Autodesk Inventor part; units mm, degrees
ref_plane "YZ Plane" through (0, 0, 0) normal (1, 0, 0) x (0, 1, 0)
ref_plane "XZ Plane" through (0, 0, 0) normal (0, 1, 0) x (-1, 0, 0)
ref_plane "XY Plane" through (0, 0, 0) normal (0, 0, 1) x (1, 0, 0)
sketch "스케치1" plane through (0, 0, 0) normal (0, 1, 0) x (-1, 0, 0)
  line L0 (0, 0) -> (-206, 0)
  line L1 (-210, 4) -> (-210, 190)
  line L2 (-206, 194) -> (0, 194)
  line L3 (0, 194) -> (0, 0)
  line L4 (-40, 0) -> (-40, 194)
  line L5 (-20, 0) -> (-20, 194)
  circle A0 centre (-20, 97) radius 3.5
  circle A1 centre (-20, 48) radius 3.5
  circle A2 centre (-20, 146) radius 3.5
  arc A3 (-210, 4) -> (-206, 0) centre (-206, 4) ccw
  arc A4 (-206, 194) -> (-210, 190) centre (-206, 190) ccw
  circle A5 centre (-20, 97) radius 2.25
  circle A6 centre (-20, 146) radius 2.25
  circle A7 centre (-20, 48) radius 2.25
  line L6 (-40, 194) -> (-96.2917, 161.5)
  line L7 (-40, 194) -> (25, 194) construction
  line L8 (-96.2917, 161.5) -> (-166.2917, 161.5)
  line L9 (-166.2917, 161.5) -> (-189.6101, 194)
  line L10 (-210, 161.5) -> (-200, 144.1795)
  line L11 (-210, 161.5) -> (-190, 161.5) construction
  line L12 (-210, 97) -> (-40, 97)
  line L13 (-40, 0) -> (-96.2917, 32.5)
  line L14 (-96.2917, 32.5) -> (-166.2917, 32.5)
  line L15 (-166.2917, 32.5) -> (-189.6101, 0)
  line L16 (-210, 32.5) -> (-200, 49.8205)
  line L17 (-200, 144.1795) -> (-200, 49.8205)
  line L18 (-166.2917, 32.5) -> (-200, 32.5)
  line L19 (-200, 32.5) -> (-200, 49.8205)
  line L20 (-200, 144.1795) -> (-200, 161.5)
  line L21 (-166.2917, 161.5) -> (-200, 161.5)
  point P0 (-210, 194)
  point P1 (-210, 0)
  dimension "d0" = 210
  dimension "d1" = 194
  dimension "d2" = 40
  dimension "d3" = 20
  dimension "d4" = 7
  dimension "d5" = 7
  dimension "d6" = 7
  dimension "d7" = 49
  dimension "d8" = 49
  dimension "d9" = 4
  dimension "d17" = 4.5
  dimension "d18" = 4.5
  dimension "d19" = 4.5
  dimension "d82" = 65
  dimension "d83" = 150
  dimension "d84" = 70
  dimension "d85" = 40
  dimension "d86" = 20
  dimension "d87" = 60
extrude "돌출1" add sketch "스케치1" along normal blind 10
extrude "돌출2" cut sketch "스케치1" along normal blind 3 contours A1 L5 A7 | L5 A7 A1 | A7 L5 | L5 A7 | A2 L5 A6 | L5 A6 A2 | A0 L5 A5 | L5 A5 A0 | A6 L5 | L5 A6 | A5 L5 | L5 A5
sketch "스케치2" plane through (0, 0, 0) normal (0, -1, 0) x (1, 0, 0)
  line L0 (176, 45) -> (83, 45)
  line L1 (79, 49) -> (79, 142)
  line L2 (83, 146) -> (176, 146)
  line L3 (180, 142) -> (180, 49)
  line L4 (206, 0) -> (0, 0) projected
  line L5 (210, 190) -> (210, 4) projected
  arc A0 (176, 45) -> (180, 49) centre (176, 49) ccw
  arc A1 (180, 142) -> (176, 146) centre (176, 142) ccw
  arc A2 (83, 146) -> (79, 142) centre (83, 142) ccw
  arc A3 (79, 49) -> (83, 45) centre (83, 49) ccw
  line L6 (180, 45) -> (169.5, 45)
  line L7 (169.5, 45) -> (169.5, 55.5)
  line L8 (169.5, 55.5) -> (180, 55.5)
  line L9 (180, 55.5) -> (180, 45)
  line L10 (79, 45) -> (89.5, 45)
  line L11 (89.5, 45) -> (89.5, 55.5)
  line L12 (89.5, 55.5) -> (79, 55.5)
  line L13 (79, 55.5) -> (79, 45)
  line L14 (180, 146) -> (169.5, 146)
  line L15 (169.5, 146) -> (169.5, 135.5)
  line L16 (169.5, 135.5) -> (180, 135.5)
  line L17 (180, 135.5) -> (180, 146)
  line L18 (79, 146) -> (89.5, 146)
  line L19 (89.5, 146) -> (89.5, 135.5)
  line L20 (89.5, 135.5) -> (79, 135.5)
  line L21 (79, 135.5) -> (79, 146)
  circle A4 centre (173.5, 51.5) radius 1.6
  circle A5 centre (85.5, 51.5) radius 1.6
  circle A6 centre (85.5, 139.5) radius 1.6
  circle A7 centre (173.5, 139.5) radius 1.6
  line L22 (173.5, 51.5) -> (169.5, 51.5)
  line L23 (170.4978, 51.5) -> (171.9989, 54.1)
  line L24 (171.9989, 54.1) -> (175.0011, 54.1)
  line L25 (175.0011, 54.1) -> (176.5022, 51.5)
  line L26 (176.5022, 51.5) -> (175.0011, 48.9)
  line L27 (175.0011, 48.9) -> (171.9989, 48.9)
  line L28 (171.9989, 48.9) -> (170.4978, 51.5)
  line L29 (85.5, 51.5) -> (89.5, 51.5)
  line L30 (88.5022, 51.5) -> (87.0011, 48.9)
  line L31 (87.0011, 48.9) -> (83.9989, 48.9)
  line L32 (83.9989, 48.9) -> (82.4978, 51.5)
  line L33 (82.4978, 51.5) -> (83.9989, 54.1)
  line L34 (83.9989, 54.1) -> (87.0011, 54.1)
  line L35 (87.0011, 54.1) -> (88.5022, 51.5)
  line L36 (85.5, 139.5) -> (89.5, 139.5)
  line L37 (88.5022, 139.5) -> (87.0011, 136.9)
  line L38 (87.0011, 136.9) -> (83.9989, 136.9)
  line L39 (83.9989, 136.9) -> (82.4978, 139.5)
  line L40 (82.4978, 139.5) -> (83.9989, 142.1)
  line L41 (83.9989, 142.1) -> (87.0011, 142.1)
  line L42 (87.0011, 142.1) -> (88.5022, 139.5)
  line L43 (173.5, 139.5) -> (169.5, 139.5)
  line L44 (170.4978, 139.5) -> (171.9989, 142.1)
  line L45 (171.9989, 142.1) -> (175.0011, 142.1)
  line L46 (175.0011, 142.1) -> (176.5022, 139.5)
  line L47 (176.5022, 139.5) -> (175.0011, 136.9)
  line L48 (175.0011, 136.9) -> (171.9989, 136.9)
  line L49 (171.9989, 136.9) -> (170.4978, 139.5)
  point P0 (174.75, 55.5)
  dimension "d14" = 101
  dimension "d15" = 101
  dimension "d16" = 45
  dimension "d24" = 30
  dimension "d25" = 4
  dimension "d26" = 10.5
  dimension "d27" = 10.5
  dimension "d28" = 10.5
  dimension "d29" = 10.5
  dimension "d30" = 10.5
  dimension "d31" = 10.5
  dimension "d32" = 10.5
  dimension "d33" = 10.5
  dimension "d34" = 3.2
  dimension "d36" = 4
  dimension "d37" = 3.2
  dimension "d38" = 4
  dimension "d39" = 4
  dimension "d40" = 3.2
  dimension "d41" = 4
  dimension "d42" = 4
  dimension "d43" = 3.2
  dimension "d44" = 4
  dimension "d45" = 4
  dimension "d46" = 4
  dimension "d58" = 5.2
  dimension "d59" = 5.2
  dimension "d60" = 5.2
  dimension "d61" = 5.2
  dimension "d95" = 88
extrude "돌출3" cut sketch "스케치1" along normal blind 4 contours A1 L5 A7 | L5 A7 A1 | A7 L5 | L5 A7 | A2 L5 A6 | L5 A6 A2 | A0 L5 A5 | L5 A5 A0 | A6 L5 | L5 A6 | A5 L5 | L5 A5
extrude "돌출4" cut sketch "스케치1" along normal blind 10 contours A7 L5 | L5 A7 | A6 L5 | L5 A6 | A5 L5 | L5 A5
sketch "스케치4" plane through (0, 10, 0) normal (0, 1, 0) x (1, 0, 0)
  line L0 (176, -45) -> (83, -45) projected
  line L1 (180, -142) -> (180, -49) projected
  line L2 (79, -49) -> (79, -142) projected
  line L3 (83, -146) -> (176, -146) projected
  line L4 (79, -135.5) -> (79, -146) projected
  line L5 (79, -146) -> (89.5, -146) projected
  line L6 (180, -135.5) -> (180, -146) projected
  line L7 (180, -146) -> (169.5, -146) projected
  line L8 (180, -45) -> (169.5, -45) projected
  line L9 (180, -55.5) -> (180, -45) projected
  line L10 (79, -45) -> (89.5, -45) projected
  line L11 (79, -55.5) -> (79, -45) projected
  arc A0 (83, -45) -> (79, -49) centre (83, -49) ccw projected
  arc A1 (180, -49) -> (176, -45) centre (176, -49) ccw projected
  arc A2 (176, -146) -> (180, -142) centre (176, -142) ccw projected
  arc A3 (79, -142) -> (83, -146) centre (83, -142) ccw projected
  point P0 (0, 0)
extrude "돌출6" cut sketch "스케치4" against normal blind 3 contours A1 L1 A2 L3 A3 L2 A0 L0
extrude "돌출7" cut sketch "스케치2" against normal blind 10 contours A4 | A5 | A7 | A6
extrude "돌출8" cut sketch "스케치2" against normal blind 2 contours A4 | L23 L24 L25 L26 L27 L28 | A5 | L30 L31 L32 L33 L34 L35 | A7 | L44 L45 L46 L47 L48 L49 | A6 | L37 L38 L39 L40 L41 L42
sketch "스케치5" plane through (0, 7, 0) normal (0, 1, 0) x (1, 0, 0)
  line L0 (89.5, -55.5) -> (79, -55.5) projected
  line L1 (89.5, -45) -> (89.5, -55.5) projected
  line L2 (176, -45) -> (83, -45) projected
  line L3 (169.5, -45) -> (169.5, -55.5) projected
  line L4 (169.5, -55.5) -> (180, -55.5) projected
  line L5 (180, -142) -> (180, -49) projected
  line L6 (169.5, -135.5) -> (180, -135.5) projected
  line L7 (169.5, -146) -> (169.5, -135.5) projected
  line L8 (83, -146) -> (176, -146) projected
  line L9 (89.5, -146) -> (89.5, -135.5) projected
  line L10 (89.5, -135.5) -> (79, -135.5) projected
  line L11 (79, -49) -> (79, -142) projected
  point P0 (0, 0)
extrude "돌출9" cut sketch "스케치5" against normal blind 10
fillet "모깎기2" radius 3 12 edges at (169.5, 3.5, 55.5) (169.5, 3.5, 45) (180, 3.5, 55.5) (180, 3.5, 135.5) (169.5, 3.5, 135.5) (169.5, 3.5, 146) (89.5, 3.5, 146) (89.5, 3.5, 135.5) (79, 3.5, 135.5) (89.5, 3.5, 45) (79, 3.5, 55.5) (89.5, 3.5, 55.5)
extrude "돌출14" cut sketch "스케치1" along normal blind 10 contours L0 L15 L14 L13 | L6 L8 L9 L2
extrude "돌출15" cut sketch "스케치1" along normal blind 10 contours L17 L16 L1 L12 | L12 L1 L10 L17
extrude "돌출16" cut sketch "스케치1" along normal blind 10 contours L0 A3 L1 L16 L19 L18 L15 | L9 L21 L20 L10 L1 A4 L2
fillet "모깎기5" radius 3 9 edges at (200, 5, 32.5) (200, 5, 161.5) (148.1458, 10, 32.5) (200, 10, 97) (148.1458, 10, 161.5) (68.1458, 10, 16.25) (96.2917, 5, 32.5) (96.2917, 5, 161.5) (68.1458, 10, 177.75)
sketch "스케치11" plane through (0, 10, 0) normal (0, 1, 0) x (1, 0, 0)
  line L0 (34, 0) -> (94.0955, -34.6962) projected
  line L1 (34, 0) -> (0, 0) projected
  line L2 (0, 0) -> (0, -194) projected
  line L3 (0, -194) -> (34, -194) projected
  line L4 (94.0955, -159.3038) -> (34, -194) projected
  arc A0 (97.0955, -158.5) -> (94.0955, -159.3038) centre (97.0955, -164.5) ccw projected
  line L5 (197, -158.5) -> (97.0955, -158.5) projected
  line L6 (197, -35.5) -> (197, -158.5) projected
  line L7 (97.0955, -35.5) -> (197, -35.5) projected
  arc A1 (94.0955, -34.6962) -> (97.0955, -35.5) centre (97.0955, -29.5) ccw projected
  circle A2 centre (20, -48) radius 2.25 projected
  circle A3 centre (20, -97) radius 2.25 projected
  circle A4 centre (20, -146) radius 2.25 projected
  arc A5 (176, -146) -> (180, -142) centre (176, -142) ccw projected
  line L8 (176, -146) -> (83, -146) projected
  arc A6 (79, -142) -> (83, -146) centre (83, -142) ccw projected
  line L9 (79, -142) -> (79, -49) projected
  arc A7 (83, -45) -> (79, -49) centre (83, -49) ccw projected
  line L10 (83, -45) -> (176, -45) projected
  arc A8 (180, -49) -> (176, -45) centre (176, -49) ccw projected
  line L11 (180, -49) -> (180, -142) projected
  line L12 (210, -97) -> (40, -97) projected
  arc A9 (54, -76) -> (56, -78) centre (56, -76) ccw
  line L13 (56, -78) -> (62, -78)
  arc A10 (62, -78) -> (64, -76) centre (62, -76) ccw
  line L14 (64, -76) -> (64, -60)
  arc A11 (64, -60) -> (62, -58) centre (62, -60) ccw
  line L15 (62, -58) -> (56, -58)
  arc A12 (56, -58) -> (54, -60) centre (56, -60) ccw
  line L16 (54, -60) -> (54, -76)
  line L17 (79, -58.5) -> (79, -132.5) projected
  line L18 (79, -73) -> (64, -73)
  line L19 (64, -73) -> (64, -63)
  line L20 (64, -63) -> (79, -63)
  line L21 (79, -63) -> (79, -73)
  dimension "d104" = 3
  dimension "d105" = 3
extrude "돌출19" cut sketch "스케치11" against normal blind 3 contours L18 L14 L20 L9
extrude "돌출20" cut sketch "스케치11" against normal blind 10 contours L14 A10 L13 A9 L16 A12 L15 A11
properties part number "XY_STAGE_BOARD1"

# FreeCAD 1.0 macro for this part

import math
import FreeCAD as App
import Part
import Sketcher
from FreeCAD import Vector
Q = App.Units.Quantity


def edges_at(feature, points):
    """Names of the edges that pass closest to the given points."""
    edges = feature.Shape.Edges
    near = lambda p: min(range(len(edges)), key=lambda i: edges[i].distToShape(Part.Vertex(*p))[0])
    return sorted({f"Edge{near(p) + 1}" for p in points})

doc = App.newDocument("Part")
params = doc.addObject("Spreadsheet::Sheet", "Params")
for row, (alias, value) in enumerate([
    ("sketch1_radius", "4 mm"),
    ("sketch1_height", "194 mm"),
    ("pad1_length", "10 mm"),
    ("sketch2_diameter", "7 mm"),
    ("pocket1_length", "3 mm"),
    ("sketch3_diameter", "7 mm"),
    ("pocket2_length", "4 mm"),
    ("sketch4_diameter", "4.5 mm"),
    ("pocket3_length", "10 mm"),
    ("sketch5_radius", "4 mm"),
    ("sketch5_width", "93 mm"),
    ("pocket4_length", "3 mm"),
    ("sketch6_diameter", "3.2 mm"),
    ("pocket5_length", "10 mm"),
    ("pocket6_length", "2 mm"),
    ("sketch8_width", "80 mm"),
    ("sketch8_width2", "10.5 mm"),
    ("pocket7_length", "10 mm"),
    ("fillet_radius", "3 mm"),
    ("sketch9_width", "70 mm"),
    ("sketch9_length", "65 mm"),
    ("sketch9_length2", "40 mm"),
    ("pocket8_length", "10 mm"),
    ("sketch10_length", "20 mm"),
    ("sketch10_height", "129 mm"),
    ("pocket9_length", "10 mm"),
    ("sketch11_radius", "4 mm"),
    ("sketch11_length", "40 mm"),
    ("sketch11_length2", "20 mm"),
    ("sketch11_height", "28.5 mm"),
    ("sketch11_width", "16.39 mm"),
    ("pocket10_length", "10 mm"),
    ("fillet2_radius", "3 mm"),
    ("sketch12_width", "15 mm"),
    ("sketch12_height", "10 mm"),
    ("pocket11_length", "3 mm"),
    ("sketch13_radius", "2 mm"),
    ("sketch13_width", "6 mm"),
    ("sketch13_height", "16 mm"),
    ("pocket12_length", "10 mm"),
], start=1):
    params.set(f"A{row}", alias)
    params.set(f"B{row}", "=" + value)
    params.setAlias(f"B{row}", alias)

body = doc.addObject("PartDesign::Body", "Body")

# Sketch on XZ plane
sketch1 = body.newObject("Sketcher::SketchObject", "Sketch")
sketch1.AttachmentSupport = (doc.getObject("XZ_Plane"), [""])
sketch1.MapMode = "FlatFace"
sketch1.addGeometry(Part.LineSegment(Vector(0, 0, 0), Vector(0, 194, 0)), False)
sketch1.addGeometry(Part.LineSegment(Vector(0, 194, 0), Vector(206, 194, 0)), False)
sketch1.addGeometry(Part.ArcOfCircle(Part.Circle(Vector(206, 190, 0), Vector(0, 0, 1), 4), math.radians(0), math.radians(90)), False)
sketch1.addGeometry(Part.LineSegment(Vector(210, 190, 0), Vector(210, 4, 0)), False)
sketch1.addGeometry(Part.ArcOfCircle(Part.Circle(Vector(206, 4, 0), Vector(0, 0, 1), 4), math.radians(-90), math.radians(0)), False)
sketch1.addGeometry(Part.LineSegment(Vector(206, 0, 0), Vector(0, 0, 0)), False)
sketch1.addConstraint(Sketcher.Constraint("Coincident", 0, 2, 1, 1))
sketch1.addConstraint(Sketcher.Constraint("Tangent", 1, 2, 2, 2))
sketch1.addConstraint(Sketcher.Constraint("Tangent", 2, 1, 3, 1))
sketch1.addConstraint(Sketcher.Constraint("Tangent", 3, 2, 4, 2))
sketch1.addConstraint(Sketcher.Constraint("Tangent", 4, 1, 5, 1))
sketch1.addConstraint(Sketcher.Constraint("Coincident", 5, 2, 0, 1))
sketch1.addConstraint(Sketcher.Constraint("Vertical", 0))
sketch1.addConstraint(Sketcher.Constraint("Horizontal", 1))
sketch1.addConstraint(Sketcher.Constraint("Vertical", 3))
sketch1.addConstraint(Sketcher.Constraint("Horizontal", 5))
sketch1.addConstraint(Sketcher.Constraint("Coincident", 5, 2, -1, 1))
sketch1.addConstraint(Sketcher.Constraint("Equal", 2, 4))
sketch1.addConstraint(Sketcher.Constraint("Radius", 2, 4.0))
sketch1.addConstraint(Sketcher.Constraint("DistanceY", 0, 1, 0, 2, 194.0))
sketch1.addConstraint(Sketcher.Constraint("DistanceX", -1, 1, 2, 1, 210.0))
sketch1.setExpression("Constraints[12]", "Params.sketch1_radius")
sketch1.setExpression("Constraints[13]", "Params.sketch1_height")
pad1 = body.newObject("PartDesign::Pad", "Pad")
pad1.Profile = sketch1
pad1.setExpression("Length", "Params.pad1_length")
pad1.Reversed = True

# Sketch on XZ plane
sketch2 = body.newObject("Sketcher::SketchObject", "Sketch001")
sketch2.AttachmentSupport = (doc.getObject("XZ_Plane"), [""])
sketch2.MapMode = "FlatFace"
sketch2.addGeometry(Part.Circle(Vector(20, 48, 0), Vector(0, 0, 1), 3.5), False)
sketch2.addGeometry(Part.Circle(Vector(20, 146, 0), Vector(0, 0, 1), 3.5), False)
sketch2.addGeometry(Part.Circle(Vector(20, 97, 0), Vector(0, 0, 1), 3.5), False)
sketch2.addConstraint(Sketcher.Constraint("Equal", 0, 1))
sketch2.addConstraint(Sketcher.Constraint("Equal", 1, 2))
sketch2.addConstraint(Sketcher.Constraint("Vertical", 0, 3, 1, 3))
sketch2.addConstraint(Sketcher.Constraint("Vertical", 1, 3, 2, 3))
sketch2.addConstraint(Sketcher.Constraint("Diameter", 0, 7.0))
sketch2.addConstraint(Sketcher.Constraint("DistanceX", -1, 1, 0, 3, 20.0))
sketch2.addConstraint(Sketcher.Constraint("DistanceY", 0, 3, 2, 3, 49.0))
sketch2.addConstraint(Sketcher.Constraint("DistanceY", 2, 3, 1, 3, 49.0))
sketch2.addConstraint(Sketcher.Constraint("DistanceY", -1, 1, 0, 3, 48.0))
sketch2.setExpression("Constraints[4]", "Params.sketch2_diameter")
pocket1 = body.newObject("PartDesign::Pocket", "Pocket")
pocket1.Profile = sketch2
pocket1.setExpression("Length", "Params.pocket1_length")

# Sketch on XZ plane
sketch3 = body.newObject("Sketcher::SketchObject", "Sketch002")
sketch3.AttachmentSupport = (doc.getObject("XZ_Plane"), [""])
sketch3.MapMode = "FlatFace"
sketch3.addGeometry(Part.Circle(Vector(20, 48, 0), Vector(0, 0, 1), 3.5), False)
sketch3.addGeometry(Part.Circle(Vector(20, 146, 0), Vector(0, 0, 1), 3.5), False)
sketch3.addGeometry(Part.Circle(Vector(20, 97, 0), Vector(0, 0, 1), 3.5), False)
sketch3.addConstraint(Sketcher.Constraint("Equal", 0, 1))
sketch3.addConstraint(Sketcher.Constraint("Equal", 1, 2))
sketch3.addConstraint(Sketcher.Constraint("Vertical", 0, 3, 1, 3))
sketch3.addConstraint(Sketcher.Constraint("Vertical", 1, 3, 2, 3))
sketch3.addConstraint(Sketcher.Constraint("Diameter", 0, 7.0))
sketch3.addConstraint(Sketcher.Constraint("DistanceX", -1, 1, 0, 3, 20.0))
sketch3.addConstraint(Sketcher.Constraint("DistanceY", 0, 3, 2, 3, 49.0))
sketch3.addConstraint(Sketcher.Constraint("DistanceY", 2, 3, 1, 3, 49.0))
sketch3.addConstraint(Sketcher.Constraint("DistanceY", -1, 1, 0, 3, 48.0))
sketch3.setExpression("Constraints[4]", "Params.sketch3_diameter")
pocket2 = body.newObject("PartDesign::Pocket", "Pocket001")
pocket2.Profile = sketch3
pocket2.setExpression("Length", "Params.pocket2_length")

# Sketch on XZ plane
sketch4 = body.newObject("Sketcher::SketchObject", "Sketch003")
sketch4.AttachmentSupport = (doc.getObject("XZ_Plane"), [""])
sketch4.MapMode = "FlatFace"
sketch4.addGeometry(Part.Circle(Vector(20, 48, 0), Vector(0, 0, 1), 2.2), False)
sketch4.addGeometry(Part.Circle(Vector(20, 146, 0), Vector(0, 0, 1), 2.2), False)
sketch4.addGeometry(Part.Circle(Vector(20, 97, 0), Vector(0, 0, 1), 2.2), False)
sketch4.addConstraint(Sketcher.Constraint("Equal", 0, 1))
sketch4.addConstraint(Sketcher.Constraint("Equal", 1, 2))
sketch4.addConstraint(Sketcher.Constraint("Vertical", 0, 3, 1, 3))
sketch4.addConstraint(Sketcher.Constraint("Vertical", 1, 3, 2, 3))
sketch4.addConstraint(Sketcher.Constraint("Diameter", 0, 4.5))
sketch4.addConstraint(Sketcher.Constraint("DistanceX", -1, 1, 0, 3, 20.0))
sketch4.addConstraint(Sketcher.Constraint("DistanceY", 0, 3, 2, 3, 49.0))
sketch4.addConstraint(Sketcher.Constraint("DistanceY", 2, 3, 1, 3, 49.0))
sketch4.addConstraint(Sketcher.Constraint("DistanceY", -1, 1, 0, 3, 48.0))
sketch4.setExpression("Constraints[4]", "Params.sketch4_diameter")
pocket3 = body.newObject("PartDesign::Pocket", "Pocket002")
pocket3.Profile = sketch4
pocket3.setExpression("Length", "Params.pocket3_length")

# Sketch on XZ plane
sketch5 = body.newObject("Sketcher::SketchObject", "Sketch004")
sketch5.AttachmentSupport = (doc.getObject("XZ_Plane"), [""])
sketch5.MapMode = "FlatFace"
sketch5.AttachmentOffset = App.Placement(Vector(0, 0, -10), App.Rotation())
sketch5.addGeometry(Part.ArcOfCircle(Part.Circle(Vector(176, 49, 0), Vector(0, 0, 1), 4), math.radians(-90), math.radians(0)), False)
sketch5.addGeometry(Part.LineSegment(Vector(176, 45, 0), Vector(83, 45, 0)), False)
sketch5.addGeometry(Part.ArcOfCircle(Part.Circle(Vector(83, 49, 0), Vector(0, 0, 1), 4), math.radians(180), math.radians(270)), False)
sketch5.addGeometry(Part.LineSegment(Vector(79, 49, 0), Vector(79, 142, 0)), False)
sketch5.addGeometry(Part.ArcOfCircle(Part.Circle(Vector(83, 142, 0), Vector(0, 0, 1), 4), math.radians(90), math.radians(180)), False)
sketch5.addGeometry(Part.LineSegment(Vector(83, 146, 0), Vector(176, 146, 0)), False)
sketch5.addGeometry(Part.ArcOfCircle(Part.Circle(Vector(176, 142, 0), Vector(0, 0, 1), 4), math.radians(0), math.radians(90)), False)
sketch5.addGeometry(Part.LineSegment(Vector(180, 142, 0), Vector(180, 49, 0)), False)
sketch5.addConstraint(Sketcher.Constraint("Tangent", 0, 1, 1, 1))
sketch5.addConstraint(Sketcher.Constraint("Tangent", 1, 2, 2, 2))
sketch5.addConstraint(Sketcher.Constraint("Tangent", 2, 1, 3, 1))
sketch5.addConstraint(Sketcher.Constraint("Tangent", 3, 2, 4, 2))
sketch5.addConstraint(Sketcher.Constraint("Tangent", 4, 1, 5, 1))
sketch5.addConstraint(Sketcher.Constraint("Tangent", 5, 2, 6, 2))
sketch5.addConstraint(Sketcher.Constraint("Tangent", 6, 1, 7, 1))
sketch5.addConstraint(Sketcher.Constraint("Tangent", 7, 2, 0, 2))
sketch5.addConstraint(Sketcher.Constraint("Horizontal", 1))
sketch5.addConstraint(Sketcher.Constraint("Vertical", 3))
sketch5.addConstraint(Sketcher.Constraint("Horizontal", 5))
sketch5.addConstraint(Sketcher.Constraint("Vertical", 7))
sketch5.addConstraint(Sketcher.Constraint("Equal", 0, 2))
sketch5.addConstraint(Sketcher.Constraint("Equal", 2, 4))
sketch5.addConstraint(Sketcher.Constraint("Equal", 4, 6))
sketch5.addConstraint(Sketcher.Constraint("Equal", 5, 3))
sketch5.addConstraint(Sketcher.Constraint("Radius", 0, 4.0))
sketch5.addConstraint(Sketcher.Constraint("DistanceX", 1, 2, 1, 1, 93.0))
sketch5.addConstraint(Sketcher.Constraint("DistanceX", -1, 1, 0, 3, 176.0))
sketch5.addConstraint(Sketcher.Constraint("DistanceY", -1, 1, 0, 3, 49.0))
sketch5.setExpression("Constraints[16]", "Params.sketch5_radius")
sketch5.setExpression("Constraints[17]", "Params.sketch5_width")
pocket4 = body.newObject("PartDesign::Pocket", "Pocket003")
pocket4.Profile = sketch5
pocket4.setExpression("Length", "Params.pocket4_length")
pocket4.Reversed = True

# Sketch on XZ plane
sketch6 = body.newObject("Sketcher::SketchObject", "Sketch005")
sketch6.AttachmentSupport = (doc.getObject("XZ_Plane"), [""])
sketch6.MapMode = "FlatFace"
sketch6.addGeometry(Part.Circle(Vector(173.5, 51.5, 0), Vector(0, 0, 1), 1.6), False)
sketch6.addGeometry(Part.Circle(Vector(85.5, 51.5, 0), Vector(0, 0, 1), 1.6), False)
sketch6.addGeometry(Part.Circle(Vector(173.5, 139.5, 0), Vector(0, 0, 1), 1.6), False)
sketch6.addGeometry(Part.Circle(Vector(85.5, 139.5, 0), Vector(0, 0, 1), 1.6), False)
sketch6.addConstraint(Sketcher.Constraint("Equal", 0, 1))
sketch6.addConstraint(Sketcher.Constraint("Equal", 1, 2))
sketch6.addConstraint(Sketcher.Constraint("Equal", 2, 3))
sketch6.addConstraint(Sketcher.Constraint("Horizontal", 0, 3, 1, 3))
sketch6.addConstraint(Sketcher.Constraint("Horizontal", 2, 3, 3, 3))
sketch6.addConstraint(Sketcher.Constraint("Vertical", 0, 3, 2, 3))
sketch6.addConstraint(Sketcher.Constraint("Vertical", 1, 3, 3, 3))
sketch6.addConstraint(Sketcher.Constraint("Diameter", 0, 3.2))
sketch6.addConstraint(Sketcher.Constraint("DistanceX", 1, 3, 0, 3, 88.0))
sketch6.addConstraint(Sketcher.Constraint("DistanceY", 0, 3, 2, 3, 88.0))
sketch6.addConstraint(Sketcher.Constraint("DistanceX", -1, 1, 0, 3, 173.5))
sketch6.addConstraint(Sketcher.Constraint("DistanceY", -1, 1, 0, 3, 51.5))
sketch6.setExpression("Constraints[7]", "Params.sketch6_diameter")
pocket5 = body.newObject("PartDesign::Pocket", "Pocket004")
pocket5.Profile = sketch6
pocket5.setExpression("Length", "Params.pocket5_length")

# Sketch on XZ plane
sketch7 = body.newObject("Sketcher::SketchObject", "Sketch006")
sketch7.AttachmentSupport = (doc.getObject("XZ_Plane"), [""])
sketch7.MapMode = "FlatFace"
sketch7.addGeometry(Part.LineSegment(Vector(172, 54.1, 0), Vector(170.5, 51.5, 0)), False)
sketch7.addGeometry(Part.LineSegment(Vector(170.5, 51.5, 0), Vector(172, 48.9, 0)), False)
sketch7.addGeometry(Part.LineSegment(Vector(172, 48.9, 0), Vector(175, 48.9, 0)), False)
sketch7.addGeometry(Part.LineSegment(Vector(175, 48.9, 0), Vector(176.5, 51.5, 0)), False)
sketch7.addGeometry(Part.LineSegment(Vector(176.5, 51.5, 0), Vector(175, 54.1, 0)), False)
sketch7.addGeometry(Part.LineSegment(Vector(175, 54.1, 0), Vector(172, 54.1, 0)), False)
sketch7.addGeometry(Part.LineSegment(Vector(87, 48.9, 0), Vector(88.5, 51.5, 0)), False)
sketch7.addGeometry(Part.LineSegment(Vector(88.5, 51.5, 0), Vector(87, 54.1, 0)), False)
sketch7.addGeometry(Part.LineSegment(Vector(87, 54.1, 0), Vector(84, 54.1, 0)), False)
sketch7.addGeometry(Part.LineSegment(Vector(84, 54.1, 0), Vector(82.5, 51.5, 0)), False)
sketch7.addGeometry(Part.LineSegment(Vector(82.5, 51.5, 0), Vector(84, 48.9, 0)), False)
sketch7.addGeometry(Part.LineSegment(Vector(84, 48.9, 0), Vector(87, 48.9, 0)), False)
sketch7.addGeometry(Part.LineSegment(Vector(172, 142.1, 0), Vector(170.5, 139.5, 0)), False)
sketch7.addGeometry(Part.LineSegment(Vector(170.5, 139.5, 0), Vector(172, 136.9, 0)), False)
sketch7.addGeometry(Part.LineSegment(Vector(172, 136.9, 0), Vector(175, 136.9, 0)), False)
sketch7.addGeometry(Part.LineSegment(Vector(175, 136.9, 0), Vector(176.5, 139.5, 0)), False)
sketch7.addGeometry(Part.LineSegment(Vector(176.5, 139.5, 0), Vector(175, 142.1, 0)), False)
sketch7.addGeometry(Part.LineSegment(Vector(175, 142.1, 0), Vector(172, 142.1, 0)), False)
sketch7.addGeometry(Part.LineSegment(Vector(87, 136.9, 0), Vector(88.5, 139.5, 0)), False)
sketch7.addGeometry(Part.LineSegment(Vector(88.5, 139.5, 0), Vector(87, 142.1, 0)), False)
sketch7.addGeometry(Part.LineSegment(Vector(87, 142.1, 0), Vector(84, 142.1, 0)), False)
sketch7.addGeometry(Part.LineSegment(Vector(84, 142.1, 0), Vector(82.5, 139.5, 0)), False)
sketch7.addGeometry(Part.LineSegment(Vector(82.5, 139.5, 0), Vector(84, 136.9, 0)), False)
sketch7.addGeometry(Part.LineSegment(Vector(84, 136.9, 0), Vector(87, 136.9, 0)), False)
sketch7.addConstraint(Sketcher.Constraint("Coincident", 0, 2, 1, 1))
sketch7.addConstraint(Sketcher.Constraint("Coincident", 1, 2, 2, 1))
sketch7.addConstraint(Sketcher.Constraint("Coincident", 2, 2, 3, 1))
sketch7.addConstraint(Sketcher.Constraint("Coincident", 3, 2, 4, 1))
sketch7.addConstraint(Sketcher.Constraint("Coincident", 4, 2, 5, 1))
sketch7.addConstraint(Sketcher.Constraint("Coincident", 5, 2, 0, 1))
sketch7.addConstraint(Sketcher.Constraint("Coincident", 6, 2, 7, 1))
sketch7.addConstraint(Sketcher.Constraint("Coincident", 7, 2, 8, 1))
sketch7.addConstraint(Sketcher.Constraint("Coincident", 8, 2, 9, 1))
sketch7.addConstraint(Sketcher.Constraint("Coincident", 9, 2, 10, 1))
sketch7.addConstraint(Sketcher.Constraint("Coincident", 10, 2, 11, 1))
sketch7.addConstraint(Sketcher.Constraint("Coincident", 11, 2, 6, 1))
sketch7.addConstraint(Sketcher.Constraint("Coincident", 12, 2, 13, 1))
sketch7.addConstraint(Sketcher.Constraint("Coincident", 13, 2, 14, 1))
sketch7.addConstraint(Sketcher.Constraint("Coincident", 14, 2, 15, 1))
sketch7.addConstraint(Sketcher.Constraint("Coincident", 15, 2, 16, 1))
sketch7.addConstraint(Sketcher.Constraint("Coincident", 16, 2, 17, 1))
sketch7.addConstraint(Sketcher.Constraint("Coincident", 17, 2, 12, 1))
sketch7.addConstraint(Sketcher.Constraint("Coincident", 18, 2, 19, 1))
sketch7.addConstraint(Sketcher.Constraint("Coincident", 19, 2, 20, 1))
sketch7.addConstraint(Sketcher.Constraint("Coincident", 20, 2, 21, 1))
sketch7.addConstraint(Sketcher.Constraint("Coincident", 21, 2, 22, 1))
sketch7.addConstraint(Sketcher.Constraint("Coincident", 22, 2, 23, 1))
sketch7.addConstraint(Sketcher.Constraint("Coincident", 23, 2, 18, 1))
sketch7.addConstraint(Sketcher.Constraint("Horizontal", 2))
sketch7.addConstraint(Sketcher.Constraint("Horizontal", 5))
sketch7.addConstraint(Sketcher.Constraint("Horizontal", 8))
sketch7.addConstraint(Sketcher.Constraint("Horizontal", 11))
sketch7.addConstraint(Sketcher.Constraint("Horizontal", 14))
sketch7.addConstraint(Sketcher.Constraint("Horizontal", 17))
sketch7.addConstraint(Sketcher.Constraint("Horizontal", 20))
sketch7.addConstraint(Sketcher.Constraint("Horizontal", 23))
sketch7.addConstraint(Sketcher.Constraint("Parallel", 0, 3))
sketch7.addConstraint(Sketcher.Constraint("Parallel", 1, 4))
sketch7.addConstraint(Sketcher.Constraint("Parallel", 3, 6))
sketch7.addConstraint(Sketcher.Constraint("Parallel", 4, 7))
sketch7.addConstraint(Sketcher.Constraint("Parallel", 6, 9))
sketch7.addConstraint(Sketcher.Constraint("Parallel", 7, 10))
sketch7.addConstraint(Sketcher.Constraint("Parallel", 9, 12))
sketch7.addConstraint(Sketcher.Constraint("Parallel", 10, 13))
sketch7.addConstraint(Sketcher.Constraint("Parallel", 12, 15))
sketch7.addConstraint(Sketcher.Constraint("Parallel", 13, 16))
sketch7.addConstraint(Sketcher.Constraint("Parallel", 15, 18))
sketch7.addConstraint(Sketcher.Constraint("Parallel", 16, 19))
sketch7.addConstraint(Sketcher.Constraint("Parallel", 18, 21))
sketch7.addConstraint(Sketcher.Constraint("Parallel", 19, 22))
sketch7.addConstraint(Sketcher.Constraint("Horizontal", 0, 2, 3, 2))
sketch7.addConstraint(Sketcher.Constraint("Horizontal", 3, 2, 6, 2))
sketch7.addConstraint(Sketcher.Constraint("Horizontal", 5, 2, 7, 2))
sketch7.addConstraint(Sketcher.Constraint("Horizontal", 6, 2, 9, 2))
sketch7.addConstraint(Sketcher.Constraint("Horizontal", 2, 2, 10, 2))
sketch7.addConstraint(Sketcher.Constraint("Horizontal", 12, 2, 15, 2))
sketch7.addConstraint(Sketcher.Constraint("Horizontal", 15, 2, 18, 2))
sketch7.addConstraint(Sketcher.Constraint("Horizontal", 17, 2, 19, 2))
sketch7.addConstraint(Sketcher.Constraint("Horizontal", 18, 2, 21, 2))
sketch7.addConstraint(Sketcher.Constraint("Horizontal", 14, 2, 22, 2))
sketch7.addConstraint(Sketcher.Constraint("Vertical", 2, 2, 4, 2))
sketch7.addConstraint(Sketcher.Constraint("Vertical", 1, 2, 5, 2))
sketch7.addConstraint(Sketcher.Constraint("Vertical", 0, 2, 12, 2))
sketch7.addConstraint(Sketcher.Constraint("Vertical", 5, 2, 13, 2))
sketch7.addConstraint(Sketcher.Constraint("Vertical", 4, 2, 14, 2))
sketch7.addConstraint(Sketcher.Constraint("Vertical", 14, 2, 16, 2))
sketch7.addConstraint(Sketcher.Constraint("Vertical", 6, 2, 18, 2))
sketch7.addConstraint(Sketcher.Constraint("Vertical", 10, 2, 20, 2))
sketch7.addConstraint(Sketcher.Constraint("Equal", 5, 8))
sketch7.addConstraint(Sketcher.Constraint("DistanceX", 7, 2, 4, 2, 88.0))
sketch7.addConstraint(Sketcher.Constraint("DistanceY", 0, 2, 12, 2, 88.0))
sketch7.addConstraint(Sketcher.Constraint("DistanceY", 2, 2, 4, 2, 5.2))
sketch7.addConstraint(Sketcher.Constraint("Angle", 0, Q("-119.9998 deg")))
sketch7.addConstraint(Sketcher.Constraint("DistanceY", -1, 1, 0, 2, 51.5))
sketch7.addConstraint(Sketcher.Constraint("DistanceX", 2, 1, 2, 2, 3.0022))
sketch7.addConstraint(Sketcher.Constraint("DistanceX", -1, 1, 1, 2, 171.999))
pocket6 = body.newObject("PartDesign::Pocket", "Pocket005")
pocket6.Profile = sketch7
pocket6.setExpression("Length", "Params.pocket6_length")

# Sketch on XZ plane
sketch8 = body.newObject("Sketcher::SketchObject", "Sketch007")
sketch8.AttachmentSupport = (doc.getObject("XZ_Plane"), [""])
sketch8.MapMode = "FlatFace"
sketch8.AttachmentOffset = App.Placement(Vector(0, 0, -7), App.Rotation())
sketch8.addGeometry(Part.LineSegment(Vector(90, 45, 0), Vector(90, 56, 0)), False)
sketch8.addGeometry(Part.LineSegment(Vector(90, 56, 0), Vector(79, 56, 0)), False)
sketch8.addGeometry(Part.LineSegment(Vector(79, 56, 0), Vector(79, 136, 0)), False)
sketch8.addGeometry(Part.LineSegment(Vector(79, 136, 0), Vector(90, 136, 0)), False)
sketch8.addGeometry(Part.LineSegment(Vector(90, 136, 0), Vector(90, 146, 0)), False)
sketch8.addGeometry(Part.LineSegment(Vector(90, 146, 0), Vector(170, 146, 0)), False)
sketch8.addGeometry(Part.LineSegment(Vector(170, 146, 0), Vector(170, 136, 0)), False)
sketch8.addGeometry(Part.LineSegment(Vector(170, 136, 0), Vector(180, 136, 0)), False)
sketch8.addGeometry(Part.LineSegment(Vector(180, 136, 0), Vector(180, 56, 0)), False)
sketch8.addGeometry(Part.LineSegment(Vector(180, 56, 0), Vector(170, 56, 0)), False)
sketch8.addGeometry(Part.LineSegment(Vector(170, 56, 0), Vector(170, 45, 0)), False)
sketch8.addGeometry(Part.LineSegment(Vector(170, 45, 0), Vector(90, 45, 0)), False)
sketch8.addConstraint(Sketcher.Constraint("Coincident", 0, 2, 1, 1))
sketch8.addConstraint(Sketcher.Constraint("Coincident", 1, 2, 2, 1))
sketch8.addConstraint(Sketcher.Constraint("Coincident", 2, 2, 3, 1))
sketch8.addConstraint(Sketcher.Constraint("Coincident", 3, 2, 4, 1))
sketch8.addConstraint(Sketcher.Constraint("Coincident", 4, 2, 5, 1))
sketch8.addConstraint(Sketcher.Constraint("Coincident", 5, 2, 6, 1))
sketch8.addConstraint(Sketcher.Constraint("Coincident", 6, 2, 7, 1))
sketch8.addConstraint(Sketcher.Constraint("Coincident", 7, 2, 8, 1))
sketch8.addConstraint(Sketcher.Constraint("Coincident", 8, 2, 9, 1))
sketch8.addConstraint(Sketcher.Constraint("Coincident", 9, 2, 10, 1))
sketch8.addConstraint(Sketcher.Constraint("Coincident", 10, 2, 11, 1))
sketch8.addConstraint(Sketcher.Constraint("Coincident", 11, 2, 0, 1))
sketch8.addConstraint(Sketcher.Constraint("Vertical", 0))
sketch8.addConstraint(Sketcher.Constraint("Horizontal", 1))
sketch8.addConstraint(Sketcher.Constraint("Vertical", 2))
sketch8.addConstraint(Sketcher.Constraint("Horizontal", 3))
sketch8.addConstraint(Sketcher.Constraint("Vertical", 4))
sketch8.addConstraint(Sketcher.Constraint("Horizontal", 5))
sketch8.addConstraint(Sketcher.Constraint("Vertical", 6))
sketch8.addConstraint(Sketcher.Constraint("Horizontal", 7))
sketch8.addConstraint(Sketcher.Constraint("Vertical", 8))
sketch8.addConstraint(Sketcher.Constraint("Horizontal", 9))
sketch8.addConstraint(Sketcher.Constraint("Vertical", 10))
sketch8.addConstraint(Sketcher.Constraint("Horizontal", 11))
sketch8.addConstraint(Sketcher.Constraint("Horizontal", 3, 2, 6, 2))
sketch8.addConstraint(Sketcher.Constraint("Horizontal", 1, 2, 8, 2))
sketch8.addConstraint(Sketcher.Constraint("Vertical", 0, 2, 3, 2))
sketch8.addConstraint(Sketcher.Constraint("Vertical", 6, 2, 9, 2))
sketch8.addConstraint(Sketcher.Constraint("Equal", 3, 7))
sketch8.addConstraint(Sketcher.Constraint("Equal", 9, 0))
sketch8.addConstraint(Sketcher.Constraint("Equal", 11, 2))
sketch8.addConstraint(Sketcher.Constraint("Equal", 0, 4))
sketch8.addConstraint(Sketcher.Constraint("DistanceX", 5, 1, 5, 2, 80.0))
sketch8.addConstraint(Sketcher.Constraint("DistanceX", 1, 2, 1, 1, 10.5))
sketch8.addConstraint(Sketcher.Constraint("DistanceX", -1, 1, 1, 2, 79.0))
sketch8.addConstraint(Sketcher.Constraint("DistanceY", -1, 1, 4, 2, 146.0))
sketch8.setExpression("Constraints[32]", "Params.sketch8_width")
sketch8.setExpression("Constraints[33]", "Params.sketch8_width2")
pocket7 = body.newObject("PartDesign::Pocket", "Pocket006")
pocket7.Profile = sketch8
pocket7.setExpression("Length", "Params.pocket7_length")
pocket7.Reversed = True
doc.recompute()

fillet = body.newObject("PartDesign::Fillet", "Fillet")
fillet.Base = (pocket7, edges_at(pocket7, [
    (169.5, 3.5, 55.5),
    (169.5, 3.5, 45),
    (180, 3.5, 55.5),
    (180, 3.5, 135.5),
    (169.5, 3.5, 135.5),
    (169.5, 3.5, 146),
    (89.5, 3.5, 146),
    (89.5, 3.5, 135.5),
    (79, 3.5, 135.5),
    (89.5, 3.5, 45),
    (79, 3.5, 55.5),
    (89.5, 3.5, 55.5),
]))
fillet.setExpression("Radius", "Params.fillet_radius")

# Sketch on XZ plane
sketch9 = body.newObject("Sketcher::SketchObject", "Sketch008")
sketch9.AttachmentSupport = (doc.getObject("XZ_Plane"), [""])
sketch9.MapMode = "FlatFace"
sketch9.addGeometry(Part.LineSegment(Vector(190, 0, 0), Vector(40, 0, 0)), False)
sketch9.addGeometry(Part.LineSegment(Vector(40, 0, 0), Vector(96, 32, 0)), False)
sketch9.addGeometry(Part.LineSegment(Vector(96, 32, 0), Vector(166, 32, 0)), False)
sketch9.addGeometry(Part.LineSegment(Vector(166, 32, 0), Vector(190, 0, 0)), False)
sketch9.addGeometry(Part.LineSegment(Vector(96, 162, 0), Vector(40, 194, 0)), False)
sketch9.addGeometry(Part.LineSegment(Vector(40, 194, 0), Vector(190, 194, 0)), False)
sketch9.addGeometry(Part.LineSegment(Vector(190, 194, 0), Vector(166, 162, 0)), False)
sketch9.addGeometry(Part.LineSegment(Vector(166, 162, 0), Vector(96, 162, 0)), False)
sketch9.addConstraint(Sketcher.Constraint("Coincident", 0, 2, 1, 1))
sketch9.addConstraint(Sketcher.Constraint("Coincident", 1, 2, 2, 1))
sketch9.addConstraint(Sketcher.Constraint("Coincident", 2, 2, 3, 1))
sketch9.addConstraint(Sketcher.Constraint("Coincident", 3, 2, 0, 1))
sketch9.addConstraint(Sketcher.Constraint("Coincident", 4, 2, 5, 1))
sketch9.addConstraint(Sketcher.Constraint("Coincident", 5, 2, 6, 1))
sketch9.addConstraint(Sketcher.Constraint("Coincident", 6, 2, 7, 1))
sketch9.addConstraint(Sketcher.Constraint("Coincident", 7, 2, 4, 1))
sketch9.addConstraint(Sketcher.Constraint("Horizontal", 0))
sketch9.addConstraint(Sketcher.Constraint("Horizontal", 2))
sketch9.addConstraint(Sketcher.Constraint("Horizontal", 5))
sketch9.addConstraint(Sketcher.Constraint("Horizontal", 7))
sketch9.addConstraint(Sketcher.Constraint("PointOnObject", 0, 2, -1))
sketch9.addConstraint(Sketcher.Constraint("Vertical", 0, 2, 4, 2))
sketch9.addConstraint(Sketcher.Constraint("Vertical", 3, 2, 5, 2))
sketch9.addConstraint(Sketcher.Constraint("Vertical", 2, 2, 6, 2))
sketch9.addConstraint(Sketcher.Constraint("Vertical", 1, 2, 7, 2))
sketch9.addConstraint(Sketcher.Constraint("Equal", 1, 4))
sketch9.addConstraint(Sketcher.Constraint("DistanceX", 2, 1, 2, 2, 70.0))
sketch9.addConstraint(Sketcher.Constraint("Angle", 4, Q("150 deg")))
sketch9.addConstraint(Sketcher.Constraint("Distance", 1, 65.0))
sketch9.addConstraint(Sketcher.Constraint("Distance", 3, 40.0))
sketch9.addConstraint(Sketcher.Constraint("DistanceX", -1, 1, 0, 2, 40.0))
sketch9.addConstraint(Sketcher.Constraint("DistanceY", -1, 1, 4, 2, 194.0))
sketch9.setExpression("Constraints[18]", "Params.sketch9_width")
sketch9.setExpression("Constraints[20]", "Params.sketch9_length")
sketch9.setExpression("Constraints[21]", "Params.sketch9_length2")
pocket8 = body.newObject("PartDesign::Pocket", "Pocket007")
pocket8.Profile = sketch9
pocket8.setExpression("Length", "Params.pocket8_length")

# Sketch on XZ plane
sketch10 = body.newObject("Sketcher::SketchObject", "Sketch009")
sketch10.AttachmentSupport = (doc.getObject("XZ_Plane"), [""])
sketch10.MapMode = "FlatFace"
sketch10.addGeometry(Part.LineSegment(Vector(200, 50, 0), Vector(200, 144, 0)), False)
sketch10.addGeometry(Part.LineSegment(Vector(200, 144, 0), Vector(210, 162, 0)), False)
sketch10.addGeometry(Part.LineSegment(Vector(210, 162, 0), Vector(210, 32, 0)), False)
sketch10.addGeometry(Part.LineSegment(Vector(210, 32, 0), Vector(200, 50, 0)), False)
sketch10.addConstraint(Sketcher.Constraint("Coincident", 0, 2, 1, 1))
sketch10.addConstraint(Sketcher.Constraint("Coincident", 1, 2, 2, 1))
sketch10.addConstraint(Sketcher.Constraint("Coincident", 2, 2, 3, 1))
sketch10.addConstraint(Sketcher.Constraint("Coincident", 3, 2, 0, 1))
sketch10.addConstraint(Sketcher.Constraint("Vertical", 0))
sketch10.addConstraint(Sketcher.Constraint("Vertical", 2))
sketch10.addConstraint(Sketcher.Constraint("Equal", 1, 3))
sketch10.addConstraint(Sketcher.Constraint("Angle", 1, Q("60 deg")))
sketch10.addConstraint(Sketcher.Constraint("Distance", 1, 20.0))
sketch10.addConstraint(Sketcher.Constraint("DistanceX", -1, 1, 1, 2, 210.0))
sketch10.addConstraint(Sketcher.Constraint("DistanceY", 2, 2, 2, 1, 129.0))
sketch10.addConstraint(Sketcher.Constraint("DistanceY", -1, 1, 1, 2, 161.5))
sketch10.setExpression("Constraints[8]", "Params.sketch10_length")
sketch10.setExpression("Constraints[10]", "Params.sketch10_height")
pocket9 = body.newObject("PartDesign::Pocket", "Pocket008")
pocket9.Profile = sketch10
pocket9.setExpression("Length", "Params.pocket9_length")

# Sketch on XZ plane
sketch11 = body.newObject("Sketcher::SketchObject", "Sketch010")
sketch11.AttachmentSupport = (doc.getObject("XZ_Plane"), [""])
sketch11.MapMode = "FlatFace"
sketch11.addGeometry(Part.LineSegment(Vector(206, 0, 0), Vector(189.6, 0, 0)), False)
sketch11.addGeometry(Part.LineSegment(Vector(189.6, 0, 0), Vector(166.3, 32.5, 0)), False)
sketch11.addGeometry(Part.LineSegment(Vector(166.3, 32.5, 0), Vector(200, 32.5, 0)), False)
sketch11.addGeometry(Part.LineSegment(Vector(200, 32.5, 0), Vector(200, 49.8, 0)), False)
sketch11.addGeometry(Part.LineSegment(Vector(200, 49.8, 0), Vector(210, 32.5, 0)), False)
sketch11.addGeometry(Part.LineSegment(Vector(210, 32.5, 0), Vector(210, 4, 0)), False)
sketch11.addGeometry(Part.ArcOfCircle(Part.Circle(Vector(206, 4, 0), Vector(0, 0, 1), 4), math.radians(-90), math.radians(0)), False)
sketch11.addGeometry(Part.LineSegment(Vector(166.3, 161.5, 0), Vector(189.6, 194, 0)), False)
sketch11.addGeometry(Part.LineSegment(Vector(189.6, 194, 0), Vector(206, 194, 0)), False)
sketch11.addGeometry(Part.ArcOfCircle(Part.Circle(Vector(206, 190, 0), Vector(0, 0, 1), 4), math.radians(0), math.radians(90)), False)
sketch11.addGeometry(Part.LineSegment(Vector(210, 190, 0), Vector(210, 161.5, 0)), False)
sketch11.addGeometry(Part.LineSegment(Vector(210, 161.5, 0), Vector(200, 144.2, 0)), False)
sketch11.addGeometry(Part.LineSegment(Vector(200, 144.2, 0), Vector(200, 161.5, 0)), False)
sketch11.addGeometry(Part.LineSegment(Vector(200, 161.5, 0), Vector(166.3, 161.5, 0)), False)
sketch11.addConstraint(Sketcher.Constraint("Coincident", 0, 2, 1, 1))
sketch11.addConstraint(Sketcher.Constraint("Coincident", 1, 2, 2, 1))
sketch11.addConstraint(Sketcher.Constraint("Coincident", 2, 2, 3, 1))
sketch11.addConstraint(Sketcher.Constraint("Coincident", 3, 2, 4, 1))
sketch11.addConstraint(Sketcher.Constraint("Coincident", 4, 2, 5, 1))
sketch11.addConstraint(Sketcher.Constraint("Tangent", 5, 2, 6, 2))
sketch11.addConstraint(Sketcher.Constraint("Tangent", 6, 1, 0, 1))
sketch11.addConstraint(Sketcher.Constraint("Coincident", 7, 2, 8, 1))
sketch11.addConstraint(Sketcher.Constraint("Tangent", 8, 2, 9, 2))
sketch11.addConstraint(Sketcher.Constraint("Tangent", 9, 1, 10, 1))
sketch11.addConstraint(Sketcher.Constraint("Coincident", 10, 2, 11, 1))
sketch11.addConstraint(Sketcher.Constraint("Coincident", 11, 2, 12, 1))
sketch11.addConstraint(Sketcher.Constraint("Coincident", 12, 2, 13, 1))
sketch11.addConstraint(Sketcher.Constraint("Coincident", 13, 2, 7, 1))
sketch11.addConstraint(Sketcher.Constraint("Horizontal", 0))
sketch11.addConstraint(Sketcher.Constraint("Horizontal", 2))
sketch11.addConstraint(Sketcher.Constraint("Vertical", 3))
sketch11.addConstraint(Sketcher.Constraint("Vertical", 5))
sketch11.addConstraint(Sketcher.Constraint("Horizontal", 8))
sketch11.addConstraint(Sketcher.Constraint("Vertical", 10))
sketch11.addConstraint(Sketcher.Constraint("Vertical", 12))
sketch11.addConstraint(Sketcher.Constraint("Horizontal", 13))
sketch11.addConstraint(Sketcher.Constraint("Equal", 6, 9))
sketch11.addConstraint(Sketcher.Constraint("PointOnObject", 0, 2, -1))
sketch11.addConstraint(Sketcher.Constraint("Horizontal", 2, 2, 4, 2))
sketch11.addConstraint(Sketcher.Constraint("Horizontal", 10, 2, 12, 2))
sketch11.addConstraint(Sketcher.Constraint("Vertical", 6, 3, 9, 3))
sketch11.addConstraint(Sketcher.Constraint("Vertical", 0, 2, 7, 2))
sketch11.addConstraint(Sketcher.Constraint("Vertical", 3, 2, 11, 2))
sketch11.addConstraint(Sketcher.Constraint("Vertical", 1, 2, 13, 2))
sketch11.addConstraint(Sketcher.Constraint("Equal", 5, 10))
sketch11.addConstraint(Sketcher.Constraint("Equal", 3, 12))
sketch11.addConstraint(Sketcher.Constraint("Radius", 6, 4.0))
sketch11.addConstraint(Sketcher.Constraint("Angle", 4, Q("-60 deg")))
sketch11.addConstraint(Sketcher.Constraint("Distance", 1, 40.0))
sketch11.addConstraint(Sketcher.Constraint("Distance", 4, 20.0))
sketch11.addConstraint(Sketcher.Constraint("DistanceX", -1, 1, 4, 2, 210.0))
sketch11.addConstraint(Sketcher.Constraint("DistanceY", -1, 1, 7, 2, 194.0))
sketch11.addConstraint(Sketcher.Constraint("DistanceY", 5, 2, 5, 1, 28.5))
sketch11.addConstraint(Sketcher.Constraint("DistanceX", 0, 2, 0, 1, 16.39))
sketch11.setExpression("Constraints[32]", "Params.sketch11_radius")
sketch11.setExpression("Constraints[34]", "Params.sketch11_length")
sketch11.setExpression("Constraints[35]", "Params.sketch11_length2")
sketch11.setExpression("Constraints[38]", "Params.sketch11_height")
sketch11.setExpression("Constraints[39]", "Params.sketch11_width")
pocket10 = body.newObject("PartDesign::Pocket", "Pocket009")
pocket10.Profile = sketch11
pocket10.setExpression("Length", "Params.pocket10_length")
doc.recompute()

fillet2 = body.newObject("PartDesign::Fillet", "Fillet001")
fillet2.Base = (pocket10, edges_at(pocket10, [
    (200, 5, 32.5),
    (200, 5, 161.5),
    (148.146, 10, 32.5),
    (200, 10, 97),
    (148.146, 10, 161.5),
    (68.146, 10, 16.25),
    (96.292, 5, 32.5),
    (96.292, 5, 161.5),
    (68.146, 10, 177.75),
]))
fillet2.setExpression("Radius", "Params.fillet2_radius")

# Sketch on XZ plane
sketch12 = body.newObject("Sketcher::SketchObject", "Sketch011")
sketch12.AttachmentSupport = (doc.getObject("XZ_Plane"), [""])
sketch12.MapMode = "FlatFace"
sketch12.AttachmentOffset = App.Placement(Vector(0, 0, -10), App.Rotation())
sketch12.addGeometry(Part.LineSegment(Vector(64, 73, 0), Vector(79, 73, 0)), False)
sketch12.addGeometry(Part.LineSegment(Vector(79, 73, 0), Vector(79, 63, 0)), False)
sketch12.addGeometry(Part.LineSegment(Vector(79, 63, 0), Vector(64, 63, 0)), False)
sketch12.addGeometry(Part.LineSegment(Vector(64, 63, 0), Vector(64, 73, 0)), False)
sketch12.addConstraint(Sketcher.Constraint("Coincident", 0, 2, 1, 1))
sketch12.addConstraint(Sketcher.Constraint("Coincident", 1, 2, 2, 1))
sketch12.addConstraint(Sketcher.Constraint("Coincident", 2, 2, 3, 1))
sketch12.addConstraint(Sketcher.Constraint("Coincident", 3, 2, 0, 1))
sketch12.addConstraint(Sketcher.Constraint("Horizontal", 0))
sketch12.addConstraint(Sketcher.Constraint("Vertical", 1))
sketch12.addConstraint(Sketcher.Constraint("Horizontal", 2))
sketch12.addConstraint(Sketcher.Constraint("Vertical", 3))
sketch12.addConstraint(Sketcher.Constraint("DistanceX", 0, 1, 0, 2, 15.0))
sketch12.addConstraint(Sketcher.Constraint("DistanceY", 1, 2, 1, 1, 10.0))
sketch12.addConstraint(Sketcher.Constraint("DistanceX", -1, 1, 0, 2, 79.0))
sketch12.addConstraint(Sketcher.Constraint("DistanceY", -1, 1, 0, 2, 73.0))
sketch12.setExpression("Constraints[8]", "Params.sketch12_width")
sketch12.setExpression("Constraints[9]", "Params.sketch12_height")
pocket11 = body.newObject("PartDesign::Pocket", "Pocket010")
pocket11.Profile = sketch12
pocket11.setExpression("Length", "Params.pocket11_length")
pocket11.Reversed = True

# Sketch on XZ plane
sketch13 = body.newObject("Sketcher::SketchObject", "Sketch012")
sketch13.AttachmentSupport = (doc.getObject("XZ_Plane"), [""])
sketch13.MapMode = "FlatFace"
sketch13.AttachmentOffset = App.Placement(Vector(0, 0, -10), App.Rotation())
sketch13.addGeometry(Part.LineSegment(Vector(64, 76, 0), Vector(64, 60, 0)), False)
sketch13.addGeometry(Part.ArcOfCircle(Part.Circle(Vector(62, 60, 0), Vector(0, 0, 1), 2), math.radians(-90), math.radians(0)), False)
sketch13.addGeometry(Part.LineSegment(Vector(62, 58, 0), Vector(56, 58, 0)), False)
sketch13.addGeometry(Part.ArcOfCircle(Part.Circle(Vector(56, 60, 0), Vector(0, 0, 1), 2), math.radians(180), math.radians(270)), False)
sketch13.addGeometry(Part.LineSegment(Vector(54, 60, 0), Vector(54, 76, 0)), False)
sketch13.addGeometry(Part.ArcOfCircle(Part.Circle(Vector(56, 76, 0), Vector(0, 0, 1), 2), math.radians(90), math.radians(180)), False)
sketch13.addGeometry(Part.LineSegment(Vector(56, 78, 0), Vector(62, 78, 0)), False)
sketch13.addGeometry(Part.ArcOfCircle(Part.Circle(Vector(62, 76, 0), Vector(0, 0, 1), 2), math.radians(0), math.radians(90)), False)
sketch13.addConstraint(Sketcher.Constraint("Tangent", 0, 2, 1, 2))
sketch13.addConstraint(Sketcher.Constraint("Tangent", 1, 1, 2, 1))
sketch13.addConstraint(Sketcher.Constraint("Tangent", 2, 2, 3, 2))
sketch13.addConstraint(Sketcher.Constraint("Tangent", 3, 1, 4, 1))
sketch13.addConstraint(Sketcher.Constraint("Tangent", 4, 2, 5, 2))
sketch13.addConstraint(Sketcher.Constraint("Tangent", 5, 1, 6, 1))
sketch13.addConstraint(Sketcher.Constraint("Tangent", 6, 2, 7, 2))
sketch13.addConstraint(Sketcher.Constraint("Tangent", 7, 1, 0, 1))
sketch13.addConstraint(Sketcher.Constraint("Vertical", 0))
sketch13.addConstraint(Sketcher.Constraint("Horizontal", 2))
sketch13.addConstraint(Sketcher.Constraint("Vertical", 4))
sketch13.addConstraint(Sketcher.Constraint("Horizontal", 6))
sketch13.addConstraint(Sketcher.Constraint("Equal", 1, 3))
sketch13.addConstraint(Sketcher.Constraint("Equal", 3, 5))
sketch13.addConstraint(Sketcher.Constraint("Equal", 5, 7))
sketch13.addConstraint(Sketcher.Constraint("Radius", 1, 2.0))
sketch13.addConstraint(Sketcher.Constraint("DistanceX", 2, 2, 2, 1, 6.0))
sketch13.addConstraint(Sketcher.Constraint("DistanceY", 0, 2, 0, 1, 16.0))
sketch13.addConstraint(Sketcher.Constraint("DistanceX", -1, 1, 1, 3, 62.0))
sketch13.addConstraint(Sketcher.Constraint("DistanceY", -1, 1, 1, 3, 60.0))
sketch13.setExpression("Constraints[15]", "Params.sketch13_radius")
sketch13.setExpression("Constraints[16]", "Params.sketch13_width")
sketch13.setExpression("Constraints[17]", "Params.sketch13_height")
pocket12 = body.newObject("PartDesign::Pocket", "Pocket011")
pocket12.Profile = sketch13
pocket12.setExpression("Length", "Params.pocket12_length")
pocket12.Reversed = True

doc.recompute()
